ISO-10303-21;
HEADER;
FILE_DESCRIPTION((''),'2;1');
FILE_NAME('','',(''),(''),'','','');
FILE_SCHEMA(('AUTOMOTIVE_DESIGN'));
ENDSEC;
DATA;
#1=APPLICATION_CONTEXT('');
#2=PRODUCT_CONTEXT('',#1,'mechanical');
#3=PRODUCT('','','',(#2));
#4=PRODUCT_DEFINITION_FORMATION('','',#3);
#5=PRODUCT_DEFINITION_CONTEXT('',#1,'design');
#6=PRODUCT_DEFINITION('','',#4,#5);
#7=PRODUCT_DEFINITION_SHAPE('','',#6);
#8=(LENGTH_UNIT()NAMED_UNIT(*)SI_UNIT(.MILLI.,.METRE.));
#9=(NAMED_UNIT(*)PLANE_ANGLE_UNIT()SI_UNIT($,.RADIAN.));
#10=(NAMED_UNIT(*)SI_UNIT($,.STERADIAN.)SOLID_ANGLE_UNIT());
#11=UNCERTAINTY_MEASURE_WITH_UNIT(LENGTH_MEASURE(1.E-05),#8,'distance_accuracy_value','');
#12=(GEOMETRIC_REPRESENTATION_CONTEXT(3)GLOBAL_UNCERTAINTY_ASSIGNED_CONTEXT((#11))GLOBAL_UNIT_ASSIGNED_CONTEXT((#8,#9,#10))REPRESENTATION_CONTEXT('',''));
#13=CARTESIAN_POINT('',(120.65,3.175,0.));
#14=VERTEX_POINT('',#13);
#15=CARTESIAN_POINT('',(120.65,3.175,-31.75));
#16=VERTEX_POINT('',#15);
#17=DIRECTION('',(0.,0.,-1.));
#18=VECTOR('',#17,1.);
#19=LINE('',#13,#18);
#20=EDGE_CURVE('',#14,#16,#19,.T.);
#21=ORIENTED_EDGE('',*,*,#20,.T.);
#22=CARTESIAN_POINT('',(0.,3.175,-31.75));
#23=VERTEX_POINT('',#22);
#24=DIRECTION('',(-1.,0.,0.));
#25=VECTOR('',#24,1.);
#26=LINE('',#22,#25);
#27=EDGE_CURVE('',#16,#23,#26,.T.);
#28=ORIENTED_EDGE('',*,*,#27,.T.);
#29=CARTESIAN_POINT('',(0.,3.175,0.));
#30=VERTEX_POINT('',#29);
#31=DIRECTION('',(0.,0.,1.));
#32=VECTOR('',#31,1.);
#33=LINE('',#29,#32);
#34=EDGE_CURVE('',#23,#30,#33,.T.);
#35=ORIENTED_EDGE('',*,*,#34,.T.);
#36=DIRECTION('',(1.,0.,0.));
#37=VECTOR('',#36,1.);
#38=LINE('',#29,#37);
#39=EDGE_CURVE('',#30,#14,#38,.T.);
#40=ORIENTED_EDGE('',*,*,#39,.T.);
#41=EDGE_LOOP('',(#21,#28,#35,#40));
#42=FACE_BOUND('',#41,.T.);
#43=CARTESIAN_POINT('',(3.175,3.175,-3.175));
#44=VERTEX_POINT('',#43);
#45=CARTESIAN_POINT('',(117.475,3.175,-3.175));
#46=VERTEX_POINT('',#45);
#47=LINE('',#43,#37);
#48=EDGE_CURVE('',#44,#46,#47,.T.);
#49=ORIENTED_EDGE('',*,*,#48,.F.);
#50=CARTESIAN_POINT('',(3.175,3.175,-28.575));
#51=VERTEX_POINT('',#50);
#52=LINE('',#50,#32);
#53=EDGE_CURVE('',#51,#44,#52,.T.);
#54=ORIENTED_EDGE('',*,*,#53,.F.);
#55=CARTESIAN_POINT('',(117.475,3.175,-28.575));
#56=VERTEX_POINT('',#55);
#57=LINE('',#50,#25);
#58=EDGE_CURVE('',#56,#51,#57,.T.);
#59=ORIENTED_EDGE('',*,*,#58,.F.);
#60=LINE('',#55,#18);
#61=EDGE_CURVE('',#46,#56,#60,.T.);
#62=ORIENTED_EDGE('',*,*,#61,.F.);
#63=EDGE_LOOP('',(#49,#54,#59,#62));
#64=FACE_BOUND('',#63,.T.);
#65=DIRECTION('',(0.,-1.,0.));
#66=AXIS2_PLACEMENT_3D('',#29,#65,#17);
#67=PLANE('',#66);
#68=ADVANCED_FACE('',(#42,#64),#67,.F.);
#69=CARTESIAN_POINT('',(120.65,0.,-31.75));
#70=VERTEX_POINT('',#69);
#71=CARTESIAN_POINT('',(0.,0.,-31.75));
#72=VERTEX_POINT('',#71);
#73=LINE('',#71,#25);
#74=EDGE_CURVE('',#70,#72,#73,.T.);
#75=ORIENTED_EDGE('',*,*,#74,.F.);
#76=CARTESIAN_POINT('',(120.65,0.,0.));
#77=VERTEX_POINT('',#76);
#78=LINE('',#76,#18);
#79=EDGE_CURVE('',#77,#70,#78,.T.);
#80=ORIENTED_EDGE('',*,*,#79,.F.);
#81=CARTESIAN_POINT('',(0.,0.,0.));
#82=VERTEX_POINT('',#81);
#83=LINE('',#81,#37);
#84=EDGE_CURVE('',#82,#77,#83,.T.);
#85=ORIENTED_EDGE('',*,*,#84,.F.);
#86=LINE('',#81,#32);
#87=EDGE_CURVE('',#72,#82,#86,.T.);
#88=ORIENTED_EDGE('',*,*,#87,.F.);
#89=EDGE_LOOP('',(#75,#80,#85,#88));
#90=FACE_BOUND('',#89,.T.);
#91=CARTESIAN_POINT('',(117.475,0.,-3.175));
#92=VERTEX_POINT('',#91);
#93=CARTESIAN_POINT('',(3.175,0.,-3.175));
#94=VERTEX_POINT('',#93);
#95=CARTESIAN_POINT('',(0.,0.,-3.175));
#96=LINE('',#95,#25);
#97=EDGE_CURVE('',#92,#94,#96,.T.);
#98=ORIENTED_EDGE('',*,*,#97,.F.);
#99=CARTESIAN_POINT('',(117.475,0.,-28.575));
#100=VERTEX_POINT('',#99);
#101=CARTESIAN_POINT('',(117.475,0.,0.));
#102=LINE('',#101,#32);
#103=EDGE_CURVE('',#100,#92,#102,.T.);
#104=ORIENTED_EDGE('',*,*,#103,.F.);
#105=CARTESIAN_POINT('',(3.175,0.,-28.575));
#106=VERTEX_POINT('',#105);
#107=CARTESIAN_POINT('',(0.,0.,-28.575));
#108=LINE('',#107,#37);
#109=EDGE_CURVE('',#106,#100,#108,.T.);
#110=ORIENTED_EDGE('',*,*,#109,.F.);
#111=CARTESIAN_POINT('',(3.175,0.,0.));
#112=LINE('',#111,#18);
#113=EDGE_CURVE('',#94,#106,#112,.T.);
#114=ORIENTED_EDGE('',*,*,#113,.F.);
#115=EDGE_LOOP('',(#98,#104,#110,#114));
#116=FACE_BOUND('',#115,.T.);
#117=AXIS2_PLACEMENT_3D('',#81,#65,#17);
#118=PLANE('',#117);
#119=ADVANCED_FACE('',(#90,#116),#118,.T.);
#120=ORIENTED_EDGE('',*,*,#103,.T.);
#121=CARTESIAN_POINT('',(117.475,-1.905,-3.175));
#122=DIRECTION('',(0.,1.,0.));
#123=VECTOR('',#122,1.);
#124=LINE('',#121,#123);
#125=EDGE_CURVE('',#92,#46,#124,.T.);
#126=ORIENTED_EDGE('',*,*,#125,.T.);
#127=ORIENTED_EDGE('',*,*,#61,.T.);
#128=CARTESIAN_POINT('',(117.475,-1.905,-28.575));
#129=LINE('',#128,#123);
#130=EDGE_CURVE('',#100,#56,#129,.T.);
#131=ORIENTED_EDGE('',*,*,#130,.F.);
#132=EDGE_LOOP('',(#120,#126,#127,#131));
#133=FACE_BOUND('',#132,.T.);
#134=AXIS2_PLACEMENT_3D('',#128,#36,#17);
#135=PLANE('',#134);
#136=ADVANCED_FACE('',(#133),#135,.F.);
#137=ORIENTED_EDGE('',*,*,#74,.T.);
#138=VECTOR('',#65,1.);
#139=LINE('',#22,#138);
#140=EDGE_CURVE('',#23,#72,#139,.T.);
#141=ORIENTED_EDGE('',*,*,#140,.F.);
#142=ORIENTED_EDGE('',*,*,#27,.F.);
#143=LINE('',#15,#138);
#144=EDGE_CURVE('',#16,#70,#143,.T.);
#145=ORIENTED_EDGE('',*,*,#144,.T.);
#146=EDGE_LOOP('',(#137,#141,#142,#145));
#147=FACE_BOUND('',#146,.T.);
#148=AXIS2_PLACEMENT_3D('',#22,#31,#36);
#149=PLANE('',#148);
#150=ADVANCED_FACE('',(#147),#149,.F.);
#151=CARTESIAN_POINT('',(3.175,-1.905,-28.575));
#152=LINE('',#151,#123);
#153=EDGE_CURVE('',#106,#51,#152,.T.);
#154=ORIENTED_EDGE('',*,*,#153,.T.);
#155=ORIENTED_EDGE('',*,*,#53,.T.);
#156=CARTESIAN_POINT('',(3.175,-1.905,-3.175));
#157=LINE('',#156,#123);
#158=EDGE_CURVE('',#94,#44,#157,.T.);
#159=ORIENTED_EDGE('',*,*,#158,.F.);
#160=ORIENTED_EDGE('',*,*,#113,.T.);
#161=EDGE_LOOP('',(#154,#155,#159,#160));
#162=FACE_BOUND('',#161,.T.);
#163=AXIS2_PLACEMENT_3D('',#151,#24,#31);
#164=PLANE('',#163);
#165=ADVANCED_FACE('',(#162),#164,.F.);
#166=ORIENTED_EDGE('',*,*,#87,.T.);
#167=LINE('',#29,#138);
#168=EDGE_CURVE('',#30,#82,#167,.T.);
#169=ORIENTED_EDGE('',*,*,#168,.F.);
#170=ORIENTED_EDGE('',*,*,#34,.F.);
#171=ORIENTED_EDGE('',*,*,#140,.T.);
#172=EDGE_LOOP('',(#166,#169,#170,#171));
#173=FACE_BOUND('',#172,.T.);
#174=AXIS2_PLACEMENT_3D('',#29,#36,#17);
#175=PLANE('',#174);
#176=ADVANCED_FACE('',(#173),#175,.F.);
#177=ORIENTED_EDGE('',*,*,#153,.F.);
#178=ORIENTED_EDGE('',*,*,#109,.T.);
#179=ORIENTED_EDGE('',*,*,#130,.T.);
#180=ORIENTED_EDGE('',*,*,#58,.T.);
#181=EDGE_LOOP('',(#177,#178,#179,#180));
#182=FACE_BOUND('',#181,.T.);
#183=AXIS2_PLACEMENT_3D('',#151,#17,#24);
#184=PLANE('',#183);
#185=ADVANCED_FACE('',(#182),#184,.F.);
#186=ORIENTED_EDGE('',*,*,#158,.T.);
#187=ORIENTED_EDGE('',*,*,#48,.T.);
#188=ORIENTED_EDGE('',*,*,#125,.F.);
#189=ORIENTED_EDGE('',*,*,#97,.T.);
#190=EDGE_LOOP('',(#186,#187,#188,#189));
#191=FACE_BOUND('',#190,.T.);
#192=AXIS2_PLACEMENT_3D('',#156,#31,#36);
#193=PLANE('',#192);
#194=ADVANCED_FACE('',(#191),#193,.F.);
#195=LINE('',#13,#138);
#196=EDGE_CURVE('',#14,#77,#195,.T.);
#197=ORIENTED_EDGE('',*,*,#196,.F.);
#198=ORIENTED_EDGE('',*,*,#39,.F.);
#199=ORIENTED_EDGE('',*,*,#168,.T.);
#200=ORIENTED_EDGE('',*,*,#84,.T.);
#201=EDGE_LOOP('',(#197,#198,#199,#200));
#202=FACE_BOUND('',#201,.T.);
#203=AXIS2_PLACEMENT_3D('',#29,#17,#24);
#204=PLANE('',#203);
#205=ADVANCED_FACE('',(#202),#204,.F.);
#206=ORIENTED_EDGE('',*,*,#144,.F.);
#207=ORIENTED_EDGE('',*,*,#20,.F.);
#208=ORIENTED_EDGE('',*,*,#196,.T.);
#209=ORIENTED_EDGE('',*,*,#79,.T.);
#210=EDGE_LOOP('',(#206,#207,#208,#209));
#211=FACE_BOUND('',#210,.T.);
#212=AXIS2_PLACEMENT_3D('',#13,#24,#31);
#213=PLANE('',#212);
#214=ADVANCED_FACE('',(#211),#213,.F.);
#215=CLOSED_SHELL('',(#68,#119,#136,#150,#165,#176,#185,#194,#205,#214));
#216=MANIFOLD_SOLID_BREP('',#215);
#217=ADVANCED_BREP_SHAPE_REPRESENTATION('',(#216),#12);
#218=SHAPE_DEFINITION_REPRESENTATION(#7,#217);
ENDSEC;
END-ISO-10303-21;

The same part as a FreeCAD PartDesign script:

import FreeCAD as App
import Part
import Sketcher

V = App.Vector
Q = App.Units.Quantity

doc = App.newDocument("Part")
body = doc.addObject("PartDesign::Body", "Body")

# Sketch on XZ plane
sketch1 = body.newObject("Sketcher::SketchObject", "Sketch")
sketch1.AttachmentSupport = (doc.getObject("XZ_Plane"), [""])
sketch1.MapMode = "FlatFace"
sketch1.addGeometry([
    Part.LineSegment(V(0, -31.75, 0), V(0, 0, 0)),
    Part.LineSegment(V(0, 0, 0), V(120.65, 0, 0)),
    Part.LineSegment(V(120.65, 0, 0), V(120.65, -31.75, 0)),
    Part.LineSegment(V(120.65, -31.75, 0), V(0, -31.75, 0)),
], False)
sketch1.addConstraint([
    Sketcher.Constraint("Coincident", 0, 2, 1, 1),
    Sketcher.Constraint("Coincident", 1, 2, 2, 1),
    Sketcher.Constraint("Coincident", 2, 2, 3, 1),
    Sketcher.Constraint("Coincident", 3, 2, 0, 1),
    Sketcher.Constraint("Vertical", 0),
    Sketcher.Constraint("Horizontal", 1),
    Sketcher.Constraint("Vertical", 2),
    Sketcher.Constraint("Horizontal", 3),
    Sketcher.Constraint("Coincident", 0, 2, -1, 1),
    Sketcher.Constraint("DistanceX", 1, 1, 1, 2, Q("4.75 in")),
    Sketcher.Constraint("DistanceY", 0, 1, 0, 2, Q("1.25 in")),
])
pad1 = body.newObject("PartDesign::Pad", "Pad")
pad1.Profile = sketch1
pad1.Length = Q("0.125 in")
pad1.Reversed = True

# Sketch on XZ plane
sketch2 = body.newObject("Sketcher::SketchObject", "Sketch001")
sketch2.AttachmentSupport = (doc.getObject("XZ_Plane"), [""])
sketch2.MapMode = "FlatFace"
sketch2.AttachmentOffset = App.Placement(V(0, 0, -0.125 * 25.4), App.Rotation())
sketch2.addGeometry([
    Part.LineSegment(V(3.175, -28.575, 0), V(3.175, -3.175, 0)),
    Part.LineSegment(V(3.175, -3.175, 0), V(117.475, -3.175, 0)),
    Part.LineSegment(V(117.475, -3.175, 0), V(117.475, -28.575, 0)),
    Part.LineSegment(V(117.475, -28.575, 0), V(3.175, -28.575, 0)),
], False)
sketch2.addConstraint([
    Sketcher.Constraint("Coincident", 0, 2, 1, 1),
    Sketcher.Constraint("Coincident", 1, 2, 2, 1),
    Sketcher.Constraint("Coincident", 2, 2, 3, 1),
    Sketcher.Constraint("Coincident", 3, 2, 0, 1),
    Sketcher.Constraint("Vertical", 0),
    Sketcher.Constraint("Horizontal", 1),
    Sketcher.Constraint("Vertical", 2),
    Sketcher.Constraint("Horizontal", 3),
    Sketcher.Constraint("DistanceY", 0, 1, 0, 2, Q("1 in")),
    Sketcher.Constraint("DistanceX", 1, 1, 1, 2, Q("4.5 in")),
    Sketcher.Constraint("DistanceX", -1, 1, 0, 2, Q("0.125 in")),
    Sketcher.Constraint("DistanceY", 0, 2, -1, 1, Q("0.125 in")),
])
pocket1 = body.newObject("PartDesign::Pocket", "Pocket")
pocket1.Profile = sketch2
pocket1.Length = Q("0.2 in")
pocket1.Reversed = True

doc.recompute()
